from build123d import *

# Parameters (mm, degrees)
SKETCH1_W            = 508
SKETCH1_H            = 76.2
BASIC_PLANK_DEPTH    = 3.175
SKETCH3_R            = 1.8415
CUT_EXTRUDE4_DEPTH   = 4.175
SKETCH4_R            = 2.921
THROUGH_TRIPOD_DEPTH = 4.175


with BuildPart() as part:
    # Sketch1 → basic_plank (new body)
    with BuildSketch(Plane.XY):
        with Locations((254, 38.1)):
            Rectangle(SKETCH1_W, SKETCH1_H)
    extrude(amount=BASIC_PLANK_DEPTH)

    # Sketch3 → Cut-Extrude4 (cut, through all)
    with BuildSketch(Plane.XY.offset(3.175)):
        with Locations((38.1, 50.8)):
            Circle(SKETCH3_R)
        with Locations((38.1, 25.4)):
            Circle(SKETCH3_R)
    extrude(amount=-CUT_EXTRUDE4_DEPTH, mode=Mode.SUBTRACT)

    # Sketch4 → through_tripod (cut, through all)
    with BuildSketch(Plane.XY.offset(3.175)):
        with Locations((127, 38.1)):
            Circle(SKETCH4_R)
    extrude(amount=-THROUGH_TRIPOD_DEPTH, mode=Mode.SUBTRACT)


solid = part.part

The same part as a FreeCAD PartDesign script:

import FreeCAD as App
import Part
import Sketcher
from FreeCAD import Vector
Q = App.Units.Quantity


def add_polygon(sketch, points):
    """Adds a closed chain of lines whose ends are joined by coincident constraints."""
    first, n = sketch.GeometryCount, len(points)
    for a, b in zip(points, points[1:] + points[:1]):
        sketch.addGeometry(Part.LineSegment(App.Vector(*a, 0), App.Vector(*b, 0)), False)
    for i in range(n):
        sketch.addConstraint(Sketcher.Constraint("Coincident", first + i, 2, first + (i + 1) % n, 1))

doc = App.newDocument("Part")
body = doc.addObject("PartDesign::Body", "Body")

# Sketch on XY plane
sketch1 = doc.addObject("Sketcher::SketchObject", "Sketch")
body.addObject(sketch1)
sketch1.AttachmentSupport = (doc.XY_Plane, [""])
sketch1.MapMode = "FlatFace"
add_polygon(sketch1, [(0, 76.2), (0, 0), (508, 0), (508, 76.2)])  # lines 0-3
sketch1.addConstraint(Sketcher.Constraint("Vertical", 0))
sketch1.addConstraint(Sketcher.Constraint("Horizontal", 1))
sketch1.addConstraint(Sketcher.Constraint("Vertical", 2))
sketch1.addConstraint(Sketcher.Constraint("Horizontal", 3))
sketch1.addConstraint(Sketcher.Constraint("Coincident", 0, 2, -1, 1))
sketch1.addConstraint(Sketcher.Constraint("DistanceX", 1, 1, 1, 2, Q("20 in")))
sketch1.addConstraint(Sketcher.Constraint("DistanceY", 0, 2, 0, 1, Q("3 in")))
pad1 = doc.addObject("PartDesign::Pad", "Pad")
body.addObject(pad1)
pad1.Profile = sketch1
pad1.Length = Q("0.125 in")

# Sketch on XY plane
sketch2 = doc.addObject("Sketcher::SketchObject", "Sketch001")
body.addObject(sketch2)
sketch2.AttachmentSupport = (doc.XY_Plane, [""])
sketch2.MapMode = "FlatFace"
sketch2.AttachmentOffset = App.Placement(Vector(0, 0, 0.125 * 25.4), App.Rotation())
sketch2.addGeometry(Part.Circle(Vector(38.1, 50.8, 0), Vector(0, 0, 1), 1.8415), False)
sketch2.addGeometry(Part.Circle(Vector(38.1, 25.4, 0), Vector(0, 0, 1), 1.8415), False)
sketch2.addConstraint(Sketcher.Constraint("Equal", 0, 1))
sketch2.addConstraint(Sketcher.Constraint("Vertical", 0, 3, 1, 3))
sketch2.addConstraint(Sketcher.Constraint("Diameter", 0, Q("0.145 in")))
sketch2.addConstraint(Sketcher.Constraint("DistanceY", -1, 1, 0, 3, Q("2 in")))
sketch2.addConstraint(Sketcher.Constraint("DistanceY", -1, 1, 1, 3, Q("1 in")))
sketch2.addConstraint(Sketcher.Constraint("DistanceX", -1, 1, 0, 3, Q("1.5 in")))
pocket1 = doc.addObject("PartDesign::Pocket", "Pocket")
body.addObject(pocket1)
pocket1.Profile = sketch2
pocket1.Type = "ThroughAll"

# Sketch on XY plane
sketch3 = doc.addObject("Sketcher::SketchObject", "Sketch002")
body.addObject(sketch3)
sketch3.AttachmentSupport = (doc.XY_Plane, [""])
sketch3.MapMode = "FlatFace"
sketch3.AttachmentOffset = App.Placement(Vector(0, 0, 0.125 * 25.4), App.Rotation())
sketch3.addGeometry(Part.Circle(Vector(127, 38.1, 0), Vector(0, 0, 1), 2.921), False)
sketch3.addConstraint(Sketcher.Constraint("Diameter", 0, Q("0.23 in")))
sketch3.addConstraint(Sketcher.Constraint("DistanceX", -1, 1, 0, 3, Q("5 in")))
sketch3.addConstraint(Sketcher.Constraint("DistanceY", -1, 1, 0, 3, Q("1.5 in")))
pocket2 = doc.addObject("PartDesign::Pocket", "Pocket001")
body.addObject(pocket2)
pocket2.Profile = sketch3
pocket2.Type = "ThroughAll"

doc.recompute()
